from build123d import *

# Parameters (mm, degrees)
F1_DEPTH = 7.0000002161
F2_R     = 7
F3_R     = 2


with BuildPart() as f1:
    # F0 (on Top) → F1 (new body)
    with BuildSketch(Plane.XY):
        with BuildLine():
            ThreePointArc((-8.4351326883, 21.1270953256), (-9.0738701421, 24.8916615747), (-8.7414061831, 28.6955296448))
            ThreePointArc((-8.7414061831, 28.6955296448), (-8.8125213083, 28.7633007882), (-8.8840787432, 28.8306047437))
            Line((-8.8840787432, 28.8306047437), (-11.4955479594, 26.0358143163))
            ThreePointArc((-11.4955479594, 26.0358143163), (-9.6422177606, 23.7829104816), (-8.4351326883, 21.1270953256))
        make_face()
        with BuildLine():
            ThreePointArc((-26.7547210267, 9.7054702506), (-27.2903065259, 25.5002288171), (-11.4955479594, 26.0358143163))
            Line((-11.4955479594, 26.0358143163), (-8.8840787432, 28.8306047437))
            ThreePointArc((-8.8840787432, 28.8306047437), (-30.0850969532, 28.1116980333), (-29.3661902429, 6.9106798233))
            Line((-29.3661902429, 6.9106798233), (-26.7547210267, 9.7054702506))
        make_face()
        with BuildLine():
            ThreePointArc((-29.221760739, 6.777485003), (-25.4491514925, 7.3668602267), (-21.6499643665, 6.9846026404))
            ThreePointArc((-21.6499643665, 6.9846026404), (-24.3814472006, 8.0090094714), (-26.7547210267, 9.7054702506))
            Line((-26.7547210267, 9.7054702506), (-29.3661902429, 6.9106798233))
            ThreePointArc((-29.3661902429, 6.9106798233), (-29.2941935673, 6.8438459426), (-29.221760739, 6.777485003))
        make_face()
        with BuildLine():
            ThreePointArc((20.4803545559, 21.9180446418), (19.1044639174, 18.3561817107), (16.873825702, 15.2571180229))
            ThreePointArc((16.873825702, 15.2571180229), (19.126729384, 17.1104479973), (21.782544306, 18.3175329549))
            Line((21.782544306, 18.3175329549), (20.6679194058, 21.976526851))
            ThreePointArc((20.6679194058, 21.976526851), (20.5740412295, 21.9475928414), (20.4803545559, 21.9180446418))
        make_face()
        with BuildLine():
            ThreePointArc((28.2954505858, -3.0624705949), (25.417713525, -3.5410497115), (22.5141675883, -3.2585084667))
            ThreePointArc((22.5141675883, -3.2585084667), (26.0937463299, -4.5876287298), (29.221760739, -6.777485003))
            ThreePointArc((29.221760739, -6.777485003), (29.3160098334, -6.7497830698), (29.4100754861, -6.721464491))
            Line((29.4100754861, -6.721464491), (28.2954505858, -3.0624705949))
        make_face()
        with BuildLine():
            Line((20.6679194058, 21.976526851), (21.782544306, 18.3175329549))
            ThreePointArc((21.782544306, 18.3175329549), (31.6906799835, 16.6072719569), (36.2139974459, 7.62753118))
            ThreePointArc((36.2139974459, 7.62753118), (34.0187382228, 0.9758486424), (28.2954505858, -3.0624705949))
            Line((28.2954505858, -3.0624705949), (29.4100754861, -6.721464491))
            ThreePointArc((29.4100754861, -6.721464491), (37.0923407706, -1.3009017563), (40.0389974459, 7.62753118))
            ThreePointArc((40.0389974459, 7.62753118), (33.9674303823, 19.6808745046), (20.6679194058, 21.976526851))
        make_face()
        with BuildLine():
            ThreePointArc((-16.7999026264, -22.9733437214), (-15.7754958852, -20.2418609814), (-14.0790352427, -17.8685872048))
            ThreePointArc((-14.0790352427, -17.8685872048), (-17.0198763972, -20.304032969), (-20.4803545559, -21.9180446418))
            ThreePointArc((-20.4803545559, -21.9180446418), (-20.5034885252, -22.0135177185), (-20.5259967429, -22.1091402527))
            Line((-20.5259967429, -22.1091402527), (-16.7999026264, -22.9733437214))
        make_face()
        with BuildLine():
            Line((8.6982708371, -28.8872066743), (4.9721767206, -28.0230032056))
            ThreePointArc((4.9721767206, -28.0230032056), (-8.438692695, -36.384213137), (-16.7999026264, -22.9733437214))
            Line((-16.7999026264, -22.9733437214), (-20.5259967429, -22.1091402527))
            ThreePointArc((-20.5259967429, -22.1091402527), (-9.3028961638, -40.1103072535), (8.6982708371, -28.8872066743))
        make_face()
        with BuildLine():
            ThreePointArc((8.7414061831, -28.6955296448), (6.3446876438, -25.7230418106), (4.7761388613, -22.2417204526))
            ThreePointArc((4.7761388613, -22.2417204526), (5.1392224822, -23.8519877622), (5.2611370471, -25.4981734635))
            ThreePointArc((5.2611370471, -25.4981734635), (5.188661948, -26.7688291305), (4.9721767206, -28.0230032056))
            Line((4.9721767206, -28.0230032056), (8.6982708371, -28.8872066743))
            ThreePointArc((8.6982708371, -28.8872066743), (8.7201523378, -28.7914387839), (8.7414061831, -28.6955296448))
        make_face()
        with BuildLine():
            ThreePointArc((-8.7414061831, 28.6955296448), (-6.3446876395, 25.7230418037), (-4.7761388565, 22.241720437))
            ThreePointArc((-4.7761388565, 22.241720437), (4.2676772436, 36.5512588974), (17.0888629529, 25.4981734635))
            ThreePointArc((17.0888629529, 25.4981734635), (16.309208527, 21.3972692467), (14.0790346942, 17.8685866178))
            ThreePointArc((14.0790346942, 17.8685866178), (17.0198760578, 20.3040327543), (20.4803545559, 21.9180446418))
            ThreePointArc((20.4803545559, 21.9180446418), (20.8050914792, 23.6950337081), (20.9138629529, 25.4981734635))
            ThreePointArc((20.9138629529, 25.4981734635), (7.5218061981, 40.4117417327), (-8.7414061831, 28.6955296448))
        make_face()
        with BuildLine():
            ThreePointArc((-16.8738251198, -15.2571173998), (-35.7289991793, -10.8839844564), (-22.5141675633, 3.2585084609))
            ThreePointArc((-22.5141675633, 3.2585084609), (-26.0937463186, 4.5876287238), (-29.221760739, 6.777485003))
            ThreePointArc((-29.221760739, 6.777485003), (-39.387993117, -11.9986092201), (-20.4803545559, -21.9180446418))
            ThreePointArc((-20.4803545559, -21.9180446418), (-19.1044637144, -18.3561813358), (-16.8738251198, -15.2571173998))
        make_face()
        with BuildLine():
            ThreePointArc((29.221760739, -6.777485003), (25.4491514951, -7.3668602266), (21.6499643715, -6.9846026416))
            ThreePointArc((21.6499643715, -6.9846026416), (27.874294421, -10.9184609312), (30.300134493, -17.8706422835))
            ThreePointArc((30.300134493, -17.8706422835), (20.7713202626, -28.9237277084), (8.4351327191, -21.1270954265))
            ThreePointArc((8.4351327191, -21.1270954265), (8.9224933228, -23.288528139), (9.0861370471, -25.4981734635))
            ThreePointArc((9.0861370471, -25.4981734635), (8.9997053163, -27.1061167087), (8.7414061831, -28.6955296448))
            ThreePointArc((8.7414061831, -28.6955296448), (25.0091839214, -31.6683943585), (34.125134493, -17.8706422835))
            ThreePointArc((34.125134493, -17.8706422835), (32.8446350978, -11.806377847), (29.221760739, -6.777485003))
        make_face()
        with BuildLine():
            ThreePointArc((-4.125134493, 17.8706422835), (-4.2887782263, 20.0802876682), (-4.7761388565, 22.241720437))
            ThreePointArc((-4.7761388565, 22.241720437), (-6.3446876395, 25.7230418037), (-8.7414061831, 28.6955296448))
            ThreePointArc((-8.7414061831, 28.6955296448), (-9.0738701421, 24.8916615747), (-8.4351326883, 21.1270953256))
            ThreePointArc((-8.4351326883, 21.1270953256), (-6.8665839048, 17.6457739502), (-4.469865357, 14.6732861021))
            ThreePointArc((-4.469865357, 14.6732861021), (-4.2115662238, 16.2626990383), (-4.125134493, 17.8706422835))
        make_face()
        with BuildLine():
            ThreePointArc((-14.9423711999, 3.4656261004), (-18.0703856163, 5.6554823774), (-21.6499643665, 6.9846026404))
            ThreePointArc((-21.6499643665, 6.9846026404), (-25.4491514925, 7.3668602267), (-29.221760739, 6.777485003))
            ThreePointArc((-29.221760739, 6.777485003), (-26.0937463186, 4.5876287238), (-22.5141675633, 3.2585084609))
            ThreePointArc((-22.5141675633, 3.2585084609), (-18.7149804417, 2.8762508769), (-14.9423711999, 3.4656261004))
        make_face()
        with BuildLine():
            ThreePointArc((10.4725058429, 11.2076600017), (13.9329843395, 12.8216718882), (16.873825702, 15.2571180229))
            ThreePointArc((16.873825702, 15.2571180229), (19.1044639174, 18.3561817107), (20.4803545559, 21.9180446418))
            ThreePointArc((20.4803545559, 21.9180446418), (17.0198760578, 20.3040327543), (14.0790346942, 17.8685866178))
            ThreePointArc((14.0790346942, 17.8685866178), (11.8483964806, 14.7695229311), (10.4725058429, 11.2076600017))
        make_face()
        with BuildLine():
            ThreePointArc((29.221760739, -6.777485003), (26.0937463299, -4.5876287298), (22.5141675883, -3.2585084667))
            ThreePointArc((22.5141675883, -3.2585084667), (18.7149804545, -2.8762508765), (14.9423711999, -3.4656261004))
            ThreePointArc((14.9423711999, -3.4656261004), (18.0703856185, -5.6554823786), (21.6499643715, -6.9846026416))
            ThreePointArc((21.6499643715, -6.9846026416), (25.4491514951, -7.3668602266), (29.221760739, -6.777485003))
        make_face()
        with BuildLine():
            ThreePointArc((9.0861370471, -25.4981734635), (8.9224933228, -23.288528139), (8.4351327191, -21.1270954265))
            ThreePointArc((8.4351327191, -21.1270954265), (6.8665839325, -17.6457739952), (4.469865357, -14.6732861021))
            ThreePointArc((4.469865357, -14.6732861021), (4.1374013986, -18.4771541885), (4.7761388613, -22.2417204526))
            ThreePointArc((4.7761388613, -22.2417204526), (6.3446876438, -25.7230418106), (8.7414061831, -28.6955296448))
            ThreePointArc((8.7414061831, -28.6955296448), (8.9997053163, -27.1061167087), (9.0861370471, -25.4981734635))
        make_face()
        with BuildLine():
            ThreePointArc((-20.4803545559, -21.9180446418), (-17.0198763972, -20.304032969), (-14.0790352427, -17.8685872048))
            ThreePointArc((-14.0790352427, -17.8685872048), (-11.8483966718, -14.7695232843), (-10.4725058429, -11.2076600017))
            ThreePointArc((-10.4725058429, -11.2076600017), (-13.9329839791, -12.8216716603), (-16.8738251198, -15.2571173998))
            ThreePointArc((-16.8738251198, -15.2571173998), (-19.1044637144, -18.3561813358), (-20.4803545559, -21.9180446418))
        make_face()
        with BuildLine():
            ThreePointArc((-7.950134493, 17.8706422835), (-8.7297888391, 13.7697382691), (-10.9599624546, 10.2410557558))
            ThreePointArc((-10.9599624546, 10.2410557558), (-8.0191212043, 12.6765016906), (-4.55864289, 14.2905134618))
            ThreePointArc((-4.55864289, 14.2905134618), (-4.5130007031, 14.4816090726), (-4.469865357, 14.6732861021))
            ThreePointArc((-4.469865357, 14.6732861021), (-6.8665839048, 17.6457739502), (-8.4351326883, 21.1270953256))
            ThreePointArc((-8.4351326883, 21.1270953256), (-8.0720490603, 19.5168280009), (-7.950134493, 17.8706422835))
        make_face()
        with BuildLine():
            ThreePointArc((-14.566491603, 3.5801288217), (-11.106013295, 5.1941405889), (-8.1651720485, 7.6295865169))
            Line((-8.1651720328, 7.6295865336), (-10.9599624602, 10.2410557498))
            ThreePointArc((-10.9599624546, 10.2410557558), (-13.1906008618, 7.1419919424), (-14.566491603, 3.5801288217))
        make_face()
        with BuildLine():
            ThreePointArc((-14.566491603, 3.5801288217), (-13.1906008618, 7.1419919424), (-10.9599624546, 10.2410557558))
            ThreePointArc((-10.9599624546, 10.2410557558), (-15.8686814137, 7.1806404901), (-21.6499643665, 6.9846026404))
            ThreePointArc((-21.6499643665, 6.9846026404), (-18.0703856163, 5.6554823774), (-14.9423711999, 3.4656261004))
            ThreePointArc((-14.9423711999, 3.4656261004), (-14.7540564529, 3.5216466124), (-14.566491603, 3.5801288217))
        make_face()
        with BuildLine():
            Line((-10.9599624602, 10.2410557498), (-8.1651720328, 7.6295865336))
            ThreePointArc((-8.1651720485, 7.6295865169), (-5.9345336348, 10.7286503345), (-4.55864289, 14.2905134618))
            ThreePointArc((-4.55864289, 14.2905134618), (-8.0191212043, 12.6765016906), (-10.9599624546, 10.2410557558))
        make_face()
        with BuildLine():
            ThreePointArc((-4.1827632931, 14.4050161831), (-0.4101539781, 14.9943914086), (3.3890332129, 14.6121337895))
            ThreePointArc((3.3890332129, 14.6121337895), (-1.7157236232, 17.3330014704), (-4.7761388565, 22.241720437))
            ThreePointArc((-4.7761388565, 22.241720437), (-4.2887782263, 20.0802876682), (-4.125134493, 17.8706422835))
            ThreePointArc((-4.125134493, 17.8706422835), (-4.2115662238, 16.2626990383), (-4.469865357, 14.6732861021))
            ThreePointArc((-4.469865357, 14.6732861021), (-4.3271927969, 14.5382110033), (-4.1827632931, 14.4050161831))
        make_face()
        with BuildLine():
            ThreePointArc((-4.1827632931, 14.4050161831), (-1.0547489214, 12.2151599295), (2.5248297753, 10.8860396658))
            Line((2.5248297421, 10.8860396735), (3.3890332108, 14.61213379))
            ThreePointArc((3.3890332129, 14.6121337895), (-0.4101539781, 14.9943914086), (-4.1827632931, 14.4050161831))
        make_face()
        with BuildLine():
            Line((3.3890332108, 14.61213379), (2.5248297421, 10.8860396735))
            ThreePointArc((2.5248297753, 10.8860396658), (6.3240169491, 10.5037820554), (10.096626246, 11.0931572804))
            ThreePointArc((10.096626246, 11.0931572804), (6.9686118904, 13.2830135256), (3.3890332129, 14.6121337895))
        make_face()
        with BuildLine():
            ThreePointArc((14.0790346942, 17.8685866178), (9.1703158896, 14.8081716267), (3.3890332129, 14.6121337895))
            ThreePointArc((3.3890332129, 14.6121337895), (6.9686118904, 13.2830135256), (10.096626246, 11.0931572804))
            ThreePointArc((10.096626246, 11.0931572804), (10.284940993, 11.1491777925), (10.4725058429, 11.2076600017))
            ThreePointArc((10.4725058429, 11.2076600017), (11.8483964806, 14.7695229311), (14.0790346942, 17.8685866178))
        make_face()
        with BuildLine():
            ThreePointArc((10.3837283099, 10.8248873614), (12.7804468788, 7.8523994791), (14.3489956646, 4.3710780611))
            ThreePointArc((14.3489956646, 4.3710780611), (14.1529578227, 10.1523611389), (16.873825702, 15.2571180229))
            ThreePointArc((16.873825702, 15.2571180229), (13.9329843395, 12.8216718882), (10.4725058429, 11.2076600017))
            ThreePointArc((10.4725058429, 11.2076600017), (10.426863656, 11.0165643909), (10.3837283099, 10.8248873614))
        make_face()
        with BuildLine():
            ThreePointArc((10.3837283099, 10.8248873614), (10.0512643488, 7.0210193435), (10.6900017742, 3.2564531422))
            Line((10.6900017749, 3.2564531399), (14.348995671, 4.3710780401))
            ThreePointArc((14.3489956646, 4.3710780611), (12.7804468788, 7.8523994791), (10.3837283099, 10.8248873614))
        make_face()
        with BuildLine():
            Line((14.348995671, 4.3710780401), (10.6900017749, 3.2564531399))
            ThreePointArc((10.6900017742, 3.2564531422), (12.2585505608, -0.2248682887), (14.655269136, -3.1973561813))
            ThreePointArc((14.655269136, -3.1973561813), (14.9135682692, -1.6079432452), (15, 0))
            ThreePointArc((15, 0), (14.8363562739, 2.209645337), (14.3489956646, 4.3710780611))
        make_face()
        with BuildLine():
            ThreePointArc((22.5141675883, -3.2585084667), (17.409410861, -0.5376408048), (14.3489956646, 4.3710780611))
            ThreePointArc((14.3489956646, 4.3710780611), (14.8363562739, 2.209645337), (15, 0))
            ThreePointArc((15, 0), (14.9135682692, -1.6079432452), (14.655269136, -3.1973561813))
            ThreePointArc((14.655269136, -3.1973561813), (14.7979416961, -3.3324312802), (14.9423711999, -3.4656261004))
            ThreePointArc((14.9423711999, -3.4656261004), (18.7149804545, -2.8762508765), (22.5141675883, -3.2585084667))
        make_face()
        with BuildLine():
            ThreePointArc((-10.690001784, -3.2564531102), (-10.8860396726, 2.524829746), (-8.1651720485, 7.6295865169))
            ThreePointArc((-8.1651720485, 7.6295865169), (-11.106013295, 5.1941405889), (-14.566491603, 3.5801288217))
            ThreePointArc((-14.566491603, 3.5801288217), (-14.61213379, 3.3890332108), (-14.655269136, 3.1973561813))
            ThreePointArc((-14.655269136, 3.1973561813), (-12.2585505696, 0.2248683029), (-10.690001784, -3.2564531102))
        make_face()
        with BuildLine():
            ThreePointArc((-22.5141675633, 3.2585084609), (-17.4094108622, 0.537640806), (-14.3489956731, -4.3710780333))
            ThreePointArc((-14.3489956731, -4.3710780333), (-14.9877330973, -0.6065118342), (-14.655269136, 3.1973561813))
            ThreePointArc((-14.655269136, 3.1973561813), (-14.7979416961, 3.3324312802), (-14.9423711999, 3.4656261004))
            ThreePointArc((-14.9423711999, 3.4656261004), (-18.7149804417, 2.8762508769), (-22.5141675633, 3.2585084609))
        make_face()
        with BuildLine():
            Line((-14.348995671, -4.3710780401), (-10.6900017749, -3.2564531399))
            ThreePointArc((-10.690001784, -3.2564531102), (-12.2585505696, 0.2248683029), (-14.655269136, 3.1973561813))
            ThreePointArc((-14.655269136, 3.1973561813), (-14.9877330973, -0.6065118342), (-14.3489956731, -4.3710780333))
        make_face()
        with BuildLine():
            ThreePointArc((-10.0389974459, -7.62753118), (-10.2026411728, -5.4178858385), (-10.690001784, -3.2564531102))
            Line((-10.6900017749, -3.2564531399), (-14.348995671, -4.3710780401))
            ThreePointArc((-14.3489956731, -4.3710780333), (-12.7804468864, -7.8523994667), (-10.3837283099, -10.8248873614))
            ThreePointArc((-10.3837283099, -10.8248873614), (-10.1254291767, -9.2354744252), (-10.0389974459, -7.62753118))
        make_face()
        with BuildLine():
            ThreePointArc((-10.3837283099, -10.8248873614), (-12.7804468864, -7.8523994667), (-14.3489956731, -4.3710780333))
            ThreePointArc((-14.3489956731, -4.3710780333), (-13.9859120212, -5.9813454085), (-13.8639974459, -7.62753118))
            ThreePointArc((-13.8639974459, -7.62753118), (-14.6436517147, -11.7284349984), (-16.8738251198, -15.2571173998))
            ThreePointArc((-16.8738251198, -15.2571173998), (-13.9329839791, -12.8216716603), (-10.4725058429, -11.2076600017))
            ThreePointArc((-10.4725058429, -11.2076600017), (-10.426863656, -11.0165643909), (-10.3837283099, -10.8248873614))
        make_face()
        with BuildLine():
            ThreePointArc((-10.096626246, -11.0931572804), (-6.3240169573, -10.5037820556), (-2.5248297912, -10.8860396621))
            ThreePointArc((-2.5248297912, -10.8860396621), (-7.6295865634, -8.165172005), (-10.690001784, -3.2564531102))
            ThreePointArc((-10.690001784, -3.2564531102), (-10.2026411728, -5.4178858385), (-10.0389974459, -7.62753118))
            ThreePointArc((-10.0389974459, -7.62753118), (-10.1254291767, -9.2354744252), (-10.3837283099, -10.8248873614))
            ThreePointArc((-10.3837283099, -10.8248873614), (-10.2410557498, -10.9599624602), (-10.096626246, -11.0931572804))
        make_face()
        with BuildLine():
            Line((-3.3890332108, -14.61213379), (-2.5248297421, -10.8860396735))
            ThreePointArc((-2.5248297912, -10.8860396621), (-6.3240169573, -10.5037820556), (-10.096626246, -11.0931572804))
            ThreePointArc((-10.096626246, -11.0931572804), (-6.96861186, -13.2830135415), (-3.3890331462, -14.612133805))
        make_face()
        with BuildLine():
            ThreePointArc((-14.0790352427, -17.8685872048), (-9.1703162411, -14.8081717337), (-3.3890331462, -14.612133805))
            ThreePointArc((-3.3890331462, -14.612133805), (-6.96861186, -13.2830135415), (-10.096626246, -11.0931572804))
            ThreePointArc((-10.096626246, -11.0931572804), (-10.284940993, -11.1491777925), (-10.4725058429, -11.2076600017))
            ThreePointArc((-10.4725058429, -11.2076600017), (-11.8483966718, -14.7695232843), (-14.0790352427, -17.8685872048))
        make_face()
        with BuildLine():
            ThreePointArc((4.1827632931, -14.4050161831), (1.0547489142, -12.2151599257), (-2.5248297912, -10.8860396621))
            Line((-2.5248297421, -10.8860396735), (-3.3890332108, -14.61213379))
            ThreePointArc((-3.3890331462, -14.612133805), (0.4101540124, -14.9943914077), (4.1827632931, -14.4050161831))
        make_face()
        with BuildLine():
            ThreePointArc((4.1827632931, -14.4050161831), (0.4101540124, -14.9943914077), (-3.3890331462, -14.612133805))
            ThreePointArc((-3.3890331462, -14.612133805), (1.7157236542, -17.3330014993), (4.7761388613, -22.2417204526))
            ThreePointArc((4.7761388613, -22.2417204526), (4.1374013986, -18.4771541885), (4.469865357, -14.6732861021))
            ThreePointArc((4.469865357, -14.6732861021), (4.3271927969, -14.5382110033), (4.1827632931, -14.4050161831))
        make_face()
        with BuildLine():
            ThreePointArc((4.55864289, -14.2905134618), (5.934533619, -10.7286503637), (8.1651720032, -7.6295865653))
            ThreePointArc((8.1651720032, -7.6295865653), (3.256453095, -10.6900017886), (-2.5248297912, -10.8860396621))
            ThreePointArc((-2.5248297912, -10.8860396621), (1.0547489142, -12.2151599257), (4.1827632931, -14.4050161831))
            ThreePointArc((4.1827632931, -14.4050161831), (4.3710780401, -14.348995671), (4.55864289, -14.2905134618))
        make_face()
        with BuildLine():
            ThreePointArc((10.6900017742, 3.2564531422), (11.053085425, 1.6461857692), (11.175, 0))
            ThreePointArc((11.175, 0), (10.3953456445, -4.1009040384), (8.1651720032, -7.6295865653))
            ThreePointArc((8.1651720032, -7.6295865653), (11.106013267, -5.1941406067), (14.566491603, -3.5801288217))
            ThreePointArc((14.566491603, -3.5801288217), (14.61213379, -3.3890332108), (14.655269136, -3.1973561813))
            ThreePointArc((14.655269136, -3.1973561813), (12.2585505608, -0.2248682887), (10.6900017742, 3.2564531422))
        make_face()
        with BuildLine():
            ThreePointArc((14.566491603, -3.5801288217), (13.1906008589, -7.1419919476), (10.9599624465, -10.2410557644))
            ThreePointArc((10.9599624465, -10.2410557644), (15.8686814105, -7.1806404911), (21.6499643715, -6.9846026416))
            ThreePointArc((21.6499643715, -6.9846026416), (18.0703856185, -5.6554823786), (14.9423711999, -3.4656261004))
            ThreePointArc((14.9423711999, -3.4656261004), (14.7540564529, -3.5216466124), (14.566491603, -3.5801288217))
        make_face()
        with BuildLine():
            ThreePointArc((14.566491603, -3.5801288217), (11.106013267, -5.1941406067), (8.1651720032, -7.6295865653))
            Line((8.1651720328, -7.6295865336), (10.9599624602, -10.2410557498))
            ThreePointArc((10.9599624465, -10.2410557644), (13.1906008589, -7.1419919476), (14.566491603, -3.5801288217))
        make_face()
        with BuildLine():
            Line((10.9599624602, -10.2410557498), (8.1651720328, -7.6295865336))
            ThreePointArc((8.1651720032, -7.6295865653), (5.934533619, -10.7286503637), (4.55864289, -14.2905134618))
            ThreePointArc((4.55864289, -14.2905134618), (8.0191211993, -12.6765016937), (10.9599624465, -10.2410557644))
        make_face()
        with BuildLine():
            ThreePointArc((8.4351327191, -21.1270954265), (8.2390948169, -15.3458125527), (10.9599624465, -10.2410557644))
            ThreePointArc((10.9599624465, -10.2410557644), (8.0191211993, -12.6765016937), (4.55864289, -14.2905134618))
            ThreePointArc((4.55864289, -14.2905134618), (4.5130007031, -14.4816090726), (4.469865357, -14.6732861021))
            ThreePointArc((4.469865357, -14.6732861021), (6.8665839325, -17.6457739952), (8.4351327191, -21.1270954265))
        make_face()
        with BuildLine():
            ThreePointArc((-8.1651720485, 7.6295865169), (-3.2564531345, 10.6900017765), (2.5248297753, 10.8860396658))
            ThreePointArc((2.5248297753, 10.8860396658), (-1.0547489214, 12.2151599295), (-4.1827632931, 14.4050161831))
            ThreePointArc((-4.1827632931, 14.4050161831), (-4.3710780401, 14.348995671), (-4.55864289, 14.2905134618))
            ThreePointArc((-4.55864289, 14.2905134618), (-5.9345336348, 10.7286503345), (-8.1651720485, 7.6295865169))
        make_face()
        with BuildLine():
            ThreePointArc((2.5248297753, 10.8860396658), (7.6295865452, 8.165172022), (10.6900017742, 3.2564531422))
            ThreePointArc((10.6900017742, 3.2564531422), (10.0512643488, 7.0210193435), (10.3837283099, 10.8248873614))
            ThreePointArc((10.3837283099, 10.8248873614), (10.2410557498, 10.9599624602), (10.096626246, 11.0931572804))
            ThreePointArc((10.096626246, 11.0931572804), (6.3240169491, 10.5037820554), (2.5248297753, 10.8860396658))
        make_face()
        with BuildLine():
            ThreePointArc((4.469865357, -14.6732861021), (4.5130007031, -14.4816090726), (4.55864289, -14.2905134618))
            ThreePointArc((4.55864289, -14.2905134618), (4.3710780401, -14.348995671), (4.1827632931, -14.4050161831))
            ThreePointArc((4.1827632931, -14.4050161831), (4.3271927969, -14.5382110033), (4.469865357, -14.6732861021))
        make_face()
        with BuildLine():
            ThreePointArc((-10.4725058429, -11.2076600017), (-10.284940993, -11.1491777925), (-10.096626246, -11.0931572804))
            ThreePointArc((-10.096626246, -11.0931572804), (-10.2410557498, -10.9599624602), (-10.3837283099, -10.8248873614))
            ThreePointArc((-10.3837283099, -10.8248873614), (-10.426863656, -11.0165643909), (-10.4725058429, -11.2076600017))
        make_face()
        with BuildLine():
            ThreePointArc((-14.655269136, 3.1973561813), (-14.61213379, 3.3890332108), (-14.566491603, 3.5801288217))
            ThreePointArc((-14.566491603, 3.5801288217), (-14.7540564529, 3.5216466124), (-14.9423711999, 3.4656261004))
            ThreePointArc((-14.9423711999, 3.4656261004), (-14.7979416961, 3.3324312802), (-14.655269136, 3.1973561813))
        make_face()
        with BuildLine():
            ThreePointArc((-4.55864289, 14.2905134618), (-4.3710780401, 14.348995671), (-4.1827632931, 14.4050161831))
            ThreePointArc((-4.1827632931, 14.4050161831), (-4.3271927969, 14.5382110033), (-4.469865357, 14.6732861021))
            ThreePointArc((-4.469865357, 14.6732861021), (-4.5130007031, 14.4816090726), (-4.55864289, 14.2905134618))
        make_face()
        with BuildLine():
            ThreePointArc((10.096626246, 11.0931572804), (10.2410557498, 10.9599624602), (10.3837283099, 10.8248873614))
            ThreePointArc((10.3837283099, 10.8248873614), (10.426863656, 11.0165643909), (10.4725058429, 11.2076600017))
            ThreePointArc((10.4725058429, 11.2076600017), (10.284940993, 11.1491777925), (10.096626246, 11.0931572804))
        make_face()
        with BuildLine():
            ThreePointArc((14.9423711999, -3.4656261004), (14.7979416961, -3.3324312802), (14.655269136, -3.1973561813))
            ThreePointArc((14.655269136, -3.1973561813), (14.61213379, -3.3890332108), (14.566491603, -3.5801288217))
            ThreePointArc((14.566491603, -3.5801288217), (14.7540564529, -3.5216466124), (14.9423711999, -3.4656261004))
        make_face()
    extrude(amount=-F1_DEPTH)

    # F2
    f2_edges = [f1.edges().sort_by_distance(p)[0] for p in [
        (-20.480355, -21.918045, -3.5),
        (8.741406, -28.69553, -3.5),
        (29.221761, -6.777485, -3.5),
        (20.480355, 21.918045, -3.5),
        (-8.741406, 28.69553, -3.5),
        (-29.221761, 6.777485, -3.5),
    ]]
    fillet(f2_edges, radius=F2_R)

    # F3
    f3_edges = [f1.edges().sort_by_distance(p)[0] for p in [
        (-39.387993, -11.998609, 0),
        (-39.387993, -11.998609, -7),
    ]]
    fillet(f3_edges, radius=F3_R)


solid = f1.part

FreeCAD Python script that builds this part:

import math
import FreeCAD as App
import Part
import Sketcher

V = App.Vector


def edges_at(feature, points):
    """Names of the edges that pass closest to the given points."""
    edges = feature.Shape.Edges
    near = lambda p: min(range(len(edges)), key=lambda i: edges[i].distToShape(Part.Vertex(*p))[0])
    return sorted({f"Edge{near(p) + 1}" for p in points})

doc = App.newDocument("Part")
body = doc.addObject("PartDesign::Body", "Body")

sketch1 = doc.addObject("Sketcher::SketchObject", "Sketch")
body.addObject(sketch1)
sketch1.AttachmentSupport = (doc.XY_Plane, [""])
sketch1.MapMode = "FlatFace"
sketch1.addGeometry([
    Part.ArcOfCircle(Part.Circle(V(-25.038997, -7.627531, 0), V(0, 0, 1), 15), math.radians(106.191634), math.radians(287.69257)),
    Part.ArcOfCircle(Part.Circle(V(-5.913864, -25.498173, 0), V(0, 0, 1), 14.999999), math.radians(166.191634), math.radians(166.942102)),
    Part.ArcOfCircle(Part.Circle(V(-5.913863, -25.498173, 0), V(0, 0, 1), 15), math.radians(166.942102), math.radians(346.942102)),
    Part.ArcOfCircle(Part.Circle(V(-5.913864, -25.498173, 0), V(0, 0, 1), 15.000001), math.radians(-13.057898), math.radians(-12.30743)),
    Part.ArcOfCircle(Part.Circle(V(19.125134, -17.870642, 0), V(0, 0, 1), 15), math.radians(-133.808366), math.radians(0)),
    Part.ArcOfCircle(Part.Circle(V(19.125134, -17.870642, 0), V(0, 0, 1), 15), math.radians(0), math.radians(47.69257)),
    Part.ArcOfCircle(Part.Circle(V(25.038998, 7.62753, 0), V(0, 0, 1), 14.999998), math.radians(-73.808366), math.radians(-73.057898)),
    Part.ArcOfCircle(Part.Circle(V(25.038997, 7.627531, 0), V(0, 0, 1), 15), math.radians(-73.057898), math.radians(0)),
    Part.ArcOfCircle(Part.Circle(V(25.038997, 7.627531, 0), V(0, 0, 1), 15), math.radians(0), math.radians(106.942102)),
    Part.ArcOfCircle(Part.Circle(V(25.038997, 7.627533, 0), V(0, 0, 1), 14.999999), math.radians(106.942102), math.radians(107.69257)),
    Part.ArcOfCircle(Part.Circle(V(5.913863, 25.498173, 0), V(0, 0, 1), 15), math.radians(-13.808366), math.radians(0)),
    Part.ArcOfCircle(Part.Circle(V(5.913863, 25.498173, 0), V(0, 0, 1), 15), math.radians(0), math.radians(167.69257)),
    Part.ArcOfCircle(Part.Circle(V(-19.125136, 17.87064, 0), V(0, 0, 1), 15.000003), math.radians(46.191634), math.radians(46.942102)),
    Part.ArcOfCircle(Part.Circle(V(-19.125134, 17.870642, 0), V(0, 0, 1), 15), math.radians(46.942102), math.radians(226.942102)),
    Part.ArcOfCircle(Part.Circle(V(-19.125133, 17.870644, 0), V(0, 0, 1), 15.000002), math.radians(-133.057898), math.radians(-132.30743)),
    Part.ArcOfCircle(Part.Circle(V(-5.913863, -25.498173, 0), V(0, 0, 1), 11.175), math.radians(0), math.radians(16.942101)),
    Part.ArcOfCircle(Part.Circle(V(-5.913863, -25.498173, 0), V(0, 0, 1), 11.175), math.radians(-13.057898), math.radians(0)),
    Part.ArcOfCircle(Part.Circle(V(-5.913863, -25.498173, 0), V(0, 0, 1), 11.175), math.radians(166.942102), math.radians(346.942102)),
    Part.ArcOfCircle(Part.Circle(V(-5.913863, -25.498173, 0), V(0, 0, 1), 11.175), math.radians(136.942104), math.radians(166.942102)),
    Part.ArcOfCircle(Part.Circle(V(-5.913863, -25.498173, 0), V(0, 0, 1), 11.175), math.radians(76.942102), math.radians(136.942104)),
    Part.ArcOfCircle(Part.Circle(V(-5.913863, -25.498173, 0), V(0, 0, 1), 11.175), math.radians(16.942102), math.radians(76.942102)),
    Part.ArcOfCircle(Part.Circle(V(-25.038997, -7.627531, 0), V(0, 0, 1), 11.175), math.radians(16.942102), math.radians(316.942104)),
    Part.ArcOfCircle(Part.Circle(V(-25.038997, -7.627531, 0), V(0, 0, 1), 11.175), math.radians(0), math.radians(16.942102)),
    Part.ArcOfCircle(Part.Circle(V(-25.038997, -7.627531, 0), V(0, 0, 1), 11.175), math.radians(-43.057896), math.radians(0)),
    Part.ArcOfCircle(Part.Circle(V(19.125134, -17.870642, 0), V(0, 0, 1), 11.175), math.radians(0), math.radians(136.942102)),
    Part.ArcOfCircle(Part.Circle(V(19.125134, -17.870642, 0), V(0, 0, 1), 11.175), math.radians(-163.057898), math.radians(0)),
    Part.ArcOfCircle(Part.Circle(V(19.125134, -17.870642, 0), V(0, 0, 1), 11.175), math.radians(136.942102), math.radians(196.942102)),
    Part.ArcOfCircle(Part.Circle(V(-19.125134, 17.870642, 0), V(0, 0, 1), 11.175), math.radians(-43.057898), math.radians(0)),
    Part.ArcOfCircle(Part.Circle(V(-19.125134, 17.870642, 0), V(0, 0, 1), 11.175), math.radians(-103.057898), math.radians(-43.057898)),
    Part.ArcOfCircle(Part.Circle(V(-19.125134, 17.870642, 0), V(0, 0, 1), 11.175), math.radians(-133.057898), math.radians(-103.057898)),
    Part.ArcOfCircle(Part.Circle(V(-19.125134, 17.870642, 0), V(0, 0, 1), 11.175), math.radians(46.942102), math.radians(226.942102)),
    Part.ArcOfCircle(Part.Circle(V(-19.125134, 17.870642, 0), V(0, 0, 1), 11.175), math.radians(16.942102), math.radians(46.942102)),
    Part.ArcOfCircle(Part.Circle(V(-19.125134, 17.870642, 0), V(0, 0, 1), 11.175), math.radians(0), math.radians(16.942102)),
    Part.ArcOfCircle(Part.Circle(V(0, 0, 0), V(0, 0, 1), 11.175), math.radians(-43.057898), math.radians(0)),
    Part.ArcOfCircle(Part.Circle(V(0, 0, 0), V(0, 0, 1), 11.175), math.radians(-103.057898), math.radians(-43.057898)),
    Part.ArcOfCircle(Part.Circle(V(0, 0, 0), V(0, 0, 1), 11.175), math.radians(-163.057898), math.radians(-103.057898)),
    Part.ArcOfCircle(Part.Circle(V(0, 0, 0), V(0, 0, 1), 11.175), math.radians(136.942102), math.radians(196.942102)),
    Part.ArcOfCircle(Part.Circle(V(0, 0, 0), V(0, 0, 1), 11.175), math.radians(76.942102), math.radians(136.942102)),
    Part.ArcOfCircle(Part.Circle(V(0, 0, 0), V(0, 0, 1), 11.175), math.radians(16.942102), math.radians(76.942102)),
    Part.ArcOfCircle(Part.Circle(V(0, 0, 0), V(0, 0, 1), 11.175), math.radians(0), math.radians(16.942102)),
    Part.ArcOfCircle(Part.Circle(V(25.038997, 7.627531, 0), V(0, 0, 1), 11.175), math.radians(136.9421), math.radians(196.942102)),
    Part.ArcOfCircle(Part.Circle(V(25.038997, 7.627531, 0), V(0, 0, 1), 11.175), math.radians(0), math.radians(136.9421)),
    Part.ArcOfCircle(Part.Circle(V(25.038997, 7.627531, 0), V(0, 0, 1), 11.175), math.radians(-73.057898), math.radians(0)),
    Part.ArcOfCircle(Part.Circle(V(25.038997, 7.627531, 0), V(0, 0, 1), 11.175), math.radians(-103.057898), math.radians(-73.057898)),
    Part.ArcOfCircle(Part.Circle(V(25.038997, 7.627531, 0), V(0, 0, 1), 11.175), math.radians(-163.057898), math.radians(-103.057898)),
    Part.ArcOfCircle(Part.Circle(V(5.913863, 25.498173, 0), V(0, 0, 1), 11.175), math.radians(-163.057898), math.radians(-103.057898)),
    Part.ArcOfCircle(Part.Circle(V(5.913863, 25.498173, 0), V(0, 0, 1), 11.175), math.radians(-43.0579), math.radians(196.942102)),
    Part.ArcOfCircle(Part.Circle(V(5.913863, 25.498173, 0), V(0, 0, 1), 11.175), math.radians(-103.057898), math.radians(-43.0579)),
], False)
sketch1.addConstraint([
    Sketcher.Constraint("Coincident", 0, 2, 1, 1),
    Sketcher.Constraint("Tangent", 1, 2, 2, 1),
    Sketcher.Constraint("Tangent", 2, 2, 3, 1),
    Sketcher.Constraint("Coincident", 3, 2, 4, 1),
    Sketcher.Constraint("Tangent", 4, 2, 5, 1),
    Sketcher.Constraint("Coincident", 5, 2, 6, 1),
    Sketcher.Constraint("Tangent", 6, 2, 7, 1),
    Sketcher.Constraint("Tangent", 7, 2, 8, 1),
    Sketcher.Constraint("Tangent", 8, 2, 9, 1),
    Sketcher.Constraint("Coincident", 9, 2, 10, 1),
    Sketcher.Constraint("Tangent", 10, 2, 11, 1),
    Sketcher.Constraint("Coincident", 11, 2, 12, 1),
    Sketcher.Constraint("Tangent", 12, 2, 13, 1),
    Sketcher.Constraint("Tangent", 13, 2, 14, 1),
    Sketcher.Constraint("Coincident", 14, 2, 0, 1),
    Sketcher.Constraint("Tangent", 15, 1, 16, 2),
    Sketcher.Constraint("Tangent", 16, 1, 17, 2),
    Sketcher.Constraint("Tangent", 17, 1, 18, 2),
    Sketcher.Constraint("Tangent", 18, 1, 19, 2),
    Sketcher.Constraint("Tangent", 19, 1, 20, 2),
    Sketcher.Constraint("Tangent", 20, 1, 15, 2),
    Sketcher.Constraint("Tangent", 21, 1, 22, 2),
    Sketcher.Constraint("Tangent", 22, 1, 23, 2),
    Sketcher.Constraint("Tangent", 23, 1, 21, 2),
    Sketcher.Constraint("Tangent", 24, 1, 25, 2),
    Sketcher.Constraint("Tangent", 25, 1, 26, 2),
    Sketcher.Constraint("Tangent", 26, 1, 24, 2),
    Sketcher.Constraint("Tangent", 27, 1, 28, 2),
    Sketcher.Constraint("Tangent", 28, 1, 29, 2),
    Sketcher.Constraint("Tangent", 29, 1, 30, 2),
    Sketcher.Constraint("Tangent", 30, 1, 31, 2),
    Sketcher.Constraint("Tangent", 31, 1, 32, 2),
    Sketcher.Constraint("Tangent", 32, 1, 27, 2),
    Sketcher.Constraint("Tangent", 33, 1, 34, 2),
    Sketcher.Constraint("Tangent", 34, 1, 35, 2),
    Sketcher.Constraint("Tangent", 35, 1, 36, 2),
    Sketcher.Constraint("Tangent", 36, 1, 37, 2),
    Sketcher.Constraint("Tangent", 37, 1, 38, 2),
    Sketcher.Constraint("Tangent", 38, 1, 39, 2),
    Sketcher.Constraint("Tangent", 39, 1, 33, 2),
    Sketcher.Constraint("Tangent", 40, 1, 41, 2),
    Sketcher.Constraint("Tangent", 41, 1, 42, 2),
    Sketcher.Constraint("Tangent", 42, 1, 43, 2),
    Sketcher.Constraint("Tangent", 43, 1, 44, 2),
    Sketcher.Constraint("Tangent", 44, 1, 40, 2),
    Sketcher.Constraint("Tangent", 45, 1, 46, 2),
    Sketcher.Constraint("Tangent", 46, 1, 47, 2),
    Sketcher.Constraint("Tangent", 47, 1, 45, 2),
    Sketcher.Constraint("Coincident", 33, 3, -1, 1),
    Sketcher.Constraint("Coincident", 35, 3, -1, 1),
    Sketcher.Constraint("Coincident", 37, 3, -1, 1),
    Sketcher.Constraint("Coincident", 8, 3, 6, 3),
    Sketcher.Constraint("Coincident", 15, 3, 1, 3),
    Sketcher.Constraint("Coincident", 17, 3, 1, 3),
    Sketcher.Constraint("Coincident", 21, 3, 0, 3),
    Sketcher.Constraint("Coincident", 24, 3, 4, 3),
    Sketcher.Constraint("Coincident", 27, 3, 12, 3),
    Sketcher.Constraint("Coincident", 29, 3, 12, 3),
    Sketcher.Constraint("Coincident", 40, 3, 6, 3),
    Sketcher.Constraint("Coincident", 42, 3, 6, 3),
    Sketcher.Constraint("Coincident", 45, 3, 10, 3),
    Sketcher.Constraint("Equal", 0, 1),
    Sketcher.Constraint("Equal", 1, 2),
    Sketcher.Constraint("Equal", 2, 3),
    Sketcher.Constraint("Equal", 3, 4),
    Sketcher.Constraint("Equal", 4, 5),
    Sketcher.Constraint("Equal", 5, 6),
    Sketcher.Constraint("Equal", 8, 9),
    Sketcher.Constraint("Equal", 9, 10),
    Sketcher.Constraint("Equal", 10, 11),
    Sketcher.Constraint("Equal", 3, 12),
    Sketcher.Constraint("Equal", 11, 13),
    Sketcher.Constraint("Equal", 13, 14),
    Sketcher.Constraint("Equal", 17, 18),
    Sketcher.Constraint("Equal", 20, 21),
    Sketcher.Constraint("Equal", 23, 24),
    Sketcher.Constraint("Equal", 26, 27),
    Sketcher.Constraint("Equal", 29, 30),
    Sketcher.Constraint("Equal", 32, 33),
    Sketcher.Constraint("Equal", 39, 40),
    Sketcher.Constraint("Equal", 44, 45),
    Sketcher.Constraint("Symmetric", 0, 3, 6, 3, -1, 1),
    Sketcher.Constraint("Symmetric", 1, 3, 10, 3, -1, 1),
    Sketcher.Constraint("Symmetric", 4, 3, 12, 3, -1, 1),
    Sketcher.Constraint("PointOnObject", 39, 1, -1),
    Sketcher.Constraint("Horizontal", 26, 3, 4, 2),
    Sketcher.Constraint("Horizontal", 44, 3, 7, 2),
    Sketcher.Constraint("Horizontal", 47, 3, 10, 2),
    Sketcher.Constraint("Horizontal", 20, 3, 15, 1),
    Sketcher.Constraint("Horizontal", 23, 3, 22, 1),
    Sketcher.Constraint("Horizontal", 4, 2, 24, 1),
    Sketcher.Constraint("Horizontal", 31, 3, 32, 1),
    Sketcher.Constraint("Horizontal", 7, 2, 41, 1),
    Sketcher.Constraint("Radius", 0, 15.0),
    Sketcher.Constraint("Radius", 15, 11.175),
    Sketcher.Constraint("DistanceX", 35, 1, -1, 1, 10.690002),
    Sketcher.Constraint("DistanceX", -1, 1, 38, 1, 10.690002),
    Sketcher.Constraint("DistanceY", 0, 3, -1, 1, 7.627531),
    Sketcher.Constraint("DistanceY", -1, 1, 12, 3, 17.87064),
    Sketcher.Constraint("DistanceY", 1, 2, -1, 1, 22.10914),
    Sketcher.Constraint("DistanceX", -1, 1, 2, 2, 8.698271),
    Sketcher.Constraint("DistanceY", 3, 2, -1, 1, 28.69553),
    Sketcher.Constraint("DistanceX", -1, 1, 5, 2, 29.221761),
    Sketcher.Constraint("DistanceX", -1, 1, 8, 2, 20.667919),
    Sketcher.Constraint("DistanceX", 12, 2, -1, 1, 8.884079),
    Sketcher.Constraint("DistanceX", 13, 2, -1, 1, 29.36619),
    Sketcher.Constraint("DistanceY", -1, 1, 13, 2, 6.91068),
    Sketcher.Constraint("DistanceX", -1, 1, 20, 1, 4.776139),
    Sketcher.Constraint("DistanceY", 20, 1, -1, 1, 22.24172),
    Sketcher.Constraint("DistanceY", 21, 1, -1, 1, 4.371078),
    Sketcher.Constraint("DistanceX", 29, 1, -1, 1, 26.754721),
    Sketcher.Constraint("DistanceX", 34, 1, -1, 1, 2.52483),
    Sketcher.Constraint("DistanceX", -1, 1, 37, 1, 2.52483),
    Sketcher.Constraint("DistanceY", -1, 1, 40, 1, 15.257118),
    Sketcher.Constraint("DistanceX", -1, 1, 42, 1, 28.295451),
    Sketcher.Constraint("DistanceY", 43, 1, -1, 1, 3.258508),
    Sketcher.Constraint("DistanceY", -1, 1, 44, 1, 4.371078),
    Sketcher.Constraint("DistanceX", 45, 1, -1, 1, 4.776139),
    Sketcher.Constraint("DistanceX", -1, 1, 6, 2, 29.410075),
    Sketcher.Constraint("DistanceX", -1, 1, 16, 1, 4.972177),
    Sketcher.Constraint("DistanceX", 17, 1, -1, 1, 16.799903),
    Sketcher.Constraint("DistanceX", 18, 1, -1, 1, 14.079035),
    Sketcher.Constraint("DistanceX", 19, 1, -1, 1, 3.389033),
    Sketcher.Constraint("DistanceX", 23, 1, -1, 1, 16.873825),
    Sketcher.Constraint("DistanceX", -1, 1, 25, 1, 8.435133),
    Sketcher.Constraint("DistanceX", -1, 1, 26, 1, 10.959962),
    Sketcher.Constraint("DistanceX", 27, 1, -1, 1, 10.959962),
    Sketcher.Constraint("DistanceX", 28, 1, -1, 1, 21.649964),
    Sketcher.Constraint("DistanceX", 30, 1, -1, 1, 11.495548),
    Sketcher.Constraint("DistanceX", 31, 1, -1, 1, 8.435133),
    Sketcher.Constraint("DistanceX", -1, 1, 33, 1, 8.165172),
    Sketcher.Constraint("DistanceX", 36, 1, -1, 1, 8.165172),
    Sketcher.Constraint("DistanceX", -1, 1, 46, 1, 14.079035),
    Sketcher.Constraint("DistanceX", -1, 1, 47, 1, 3.389033),
])
pad1 = doc.addObject("PartDesign::Pad", "Pad")
body.addObject(pad1)
pad1.Profile = sketch1
pad1.Length = 7
pad1.Reversed = True
doc.recompute()

fillet = doc.addObject("PartDesign::Fillet", "Fillet")
body.addObject(fillet)
fillet.Base = (pad1, edges_at(pad1, [
    (-20.48, -21.918, -3.5),
    (8.741, -28.696, -3.5),
    (29.222, -6.777, -3.5),
    (20.48, 21.918, -3.5),
    (-8.741, 28.696, -3.5),
    (-29.222, 6.777, -3.5),
]))
fillet.Radius = 7
doc.recompute()

fillet2 = doc.addObject("PartDesign::Fillet", "Fillet001")
body.addObject(fillet2)
fillet2.Base = (fillet, edges_at(fillet, [(-39.388, -11.999, 0), (-39.388, -11.999, -7)]))
fillet2.Radius = 2

doc.recompute()
